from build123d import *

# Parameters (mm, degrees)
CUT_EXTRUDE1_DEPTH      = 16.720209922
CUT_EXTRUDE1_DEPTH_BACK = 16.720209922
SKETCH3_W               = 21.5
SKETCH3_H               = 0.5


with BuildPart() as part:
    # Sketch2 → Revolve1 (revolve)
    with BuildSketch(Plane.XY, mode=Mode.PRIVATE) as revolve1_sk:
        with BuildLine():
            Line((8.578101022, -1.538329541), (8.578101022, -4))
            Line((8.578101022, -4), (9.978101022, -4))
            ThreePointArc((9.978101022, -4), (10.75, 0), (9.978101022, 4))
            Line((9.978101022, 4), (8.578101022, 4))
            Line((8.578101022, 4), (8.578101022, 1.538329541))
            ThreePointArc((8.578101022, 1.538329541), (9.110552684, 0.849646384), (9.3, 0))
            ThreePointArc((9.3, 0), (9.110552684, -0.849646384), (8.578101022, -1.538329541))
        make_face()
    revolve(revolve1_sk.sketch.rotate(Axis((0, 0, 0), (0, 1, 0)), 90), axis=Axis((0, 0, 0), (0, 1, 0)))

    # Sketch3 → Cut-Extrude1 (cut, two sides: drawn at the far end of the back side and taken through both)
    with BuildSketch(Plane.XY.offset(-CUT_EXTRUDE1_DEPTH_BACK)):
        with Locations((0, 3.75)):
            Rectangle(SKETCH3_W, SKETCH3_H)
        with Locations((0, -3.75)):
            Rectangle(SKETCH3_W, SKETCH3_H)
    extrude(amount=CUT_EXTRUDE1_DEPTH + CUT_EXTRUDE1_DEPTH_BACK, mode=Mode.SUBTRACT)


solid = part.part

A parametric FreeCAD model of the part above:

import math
import FreeCAD as App
import Part
import Sketcher

V = App.Vector
Q = App.Units.Quantity


def add_polygon(sketch, points):
    """Adds a closed chain of lines whose ends are joined by coincident constraints."""
    first, n = sketch.GeometryCount, len(points)
    for a, b in zip(points, points[1:] + points[:1]):
        sketch.addGeometry(Part.LineSegment(App.Vector(*a, 0), App.Vector(*b, 0)), False)
    for i in range(n):
        sketch.addConstraint(Sketcher.Constraint("Coincident", first + i, 2, first + (i + 1) % n, 1))

doc = App.newDocument("Part")
body = doc.addObject("PartDesign::Body", "Body")

sketch1 = doc.addObject("Sketcher::SketchObject", "Sketch")
body.addObject(sketch1)
sketch1.AttachmentSupport = (doc.XY_Plane, [""])
sketch1.MapMode = "FlatFace"
sketch1.addGeometry([
    Part.LineSegment(V(8.578101, -1.53833, 0), V(8.578101, -4, 0)),
    Part.LineSegment(V(8.578101, -4, 0), V(9.978101, -4, 0)),
    Part.ArcOfCircle(Part.Circle(V(0, 0, 0), V(0, 0, 1), 10.75), math.radians(-21.844757), math.radians(21.844757)),
    Part.LineSegment(V(9.978101, 4, 0), V(8.578101, 4, 0)),
    Part.LineSegment(V(8.578101, 4, 0), V(8.578101, 1.53833, 0)),
    Part.ArcOfCircle(Part.Circle(V(7.3, 0, 0), V(0, 0, 1), 2), math.radians(0), math.radians(50.278945)),
    Part.ArcOfCircle(Part.Circle(V(7.3, 0, 0), V(0, 0, 1), 2), math.radians(-50.278945), math.radians(0)),
], False)
sketch1.addConstraint([
    Sketcher.Constraint("Coincident", 0, 2, 1, 1),
    Sketcher.Constraint("Coincident", 1, 2, 2, 1),
    Sketcher.Constraint("Coincident", 2, 2, 3, 1),
    Sketcher.Constraint("Coincident", 3, 2, 4, 1),
    Sketcher.Constraint("Coincident", 4, 2, 5, 2),
    Sketcher.Constraint("Tangent", 5, 1, 6, 2),
    Sketcher.Constraint("Coincident", 6, 1, 0, 1),
    Sketcher.Constraint("Vertical", 0),
    Sketcher.Constraint("Horizontal", 1),
    Sketcher.Constraint("Horizontal", 3),
    Sketcher.Constraint("Vertical", 4),
    Sketcher.Constraint("Coincident", 2, 3, -1, 1),
    Sketcher.Constraint("Equal", 5, 6),
    Sketcher.Constraint("Symmetric", 0, 2, 3, 2, -1),
    Sketcher.Constraint("PointOnObject", 5, 3, -1),
    Sketcher.Constraint("PointOnObject", 5, 1, -1),
    Sketcher.Constraint("Radius", 5, Q("2 mm")),
    Sketcher.Constraint("Radius", 2, Q("10.75 mm")),
    Sketcher.Constraint("DistanceX", 1, 1, 1, 2, Q("1.4 mm")),
    Sketcher.Constraint("DistanceY", 0, 2, -1, 1, Q("4 mm")),
    Sketcher.Constraint("DistanceX", -1, 1, 5, 3, Q("7.3 mm")),
])
revolution = doc.addObject("PartDesign::Revolution", "Revolution")
body.addObject(revolution)
revolution.Profile = sketch1
revolution.ReferenceAxis = (sketch1, ["V_Axis"])
revolution.Angle = 360

sketch2 = doc.addObject("Sketcher::SketchObject", "Sketch001")
body.addObject(sketch2)
sketch2.AttachmentSupport = (doc.XY_Plane, [""])
sketch2.MapMode = "FlatFace"
add_polygon(sketch2, [(-10.75, 4), (-10.75, 3.5), (10.75, 3.5), (10.75, 4)])
add_polygon(sketch2, [(-10.75, -3.5), (-10.75, -4), (10.75, -4), (10.75, -3.5)])
sketch2.addConstraint([
    Sketcher.Constraint("Vertical", 0),
    Sketcher.Constraint("Horizontal", 1),
    Sketcher.Constraint("Vertical", 2),
    Sketcher.Constraint("Horizontal", 3),
    Sketcher.Constraint("Vertical", 4),
    Sketcher.Constraint("Horizontal", 5),
    Sketcher.Constraint("Vertical", 6),
    Sketcher.Constraint("Horizontal", 7),
    Sketcher.Constraint("Symmetric", 2, 2, 4, 2, -1, 1),
    Sketcher.Constraint("Symmetric", 0, 2, 6, 2, -1, 1),
    Sketcher.Constraint("Vertical", 3, 2, 4, 2),
    Sketcher.Constraint("DistanceX", 1, 1, 1, 2, Q("21.5 mm")),
    Sketcher.Constraint("DistanceY", 0, 2, 0, 1, Q("0.5 mm")),
    Sketcher.Constraint("DistanceY", -1, 1, 2, 2, Q("4 mm")),
])
pocket1 = doc.addObject("PartDesign::Pocket", "Pocket")
body.addObject(pocket1)
pocket1.Profile = sketch2
pocket1.Type = "ThroughAll"
pocket1.Midplane = True

doc.recompute()
